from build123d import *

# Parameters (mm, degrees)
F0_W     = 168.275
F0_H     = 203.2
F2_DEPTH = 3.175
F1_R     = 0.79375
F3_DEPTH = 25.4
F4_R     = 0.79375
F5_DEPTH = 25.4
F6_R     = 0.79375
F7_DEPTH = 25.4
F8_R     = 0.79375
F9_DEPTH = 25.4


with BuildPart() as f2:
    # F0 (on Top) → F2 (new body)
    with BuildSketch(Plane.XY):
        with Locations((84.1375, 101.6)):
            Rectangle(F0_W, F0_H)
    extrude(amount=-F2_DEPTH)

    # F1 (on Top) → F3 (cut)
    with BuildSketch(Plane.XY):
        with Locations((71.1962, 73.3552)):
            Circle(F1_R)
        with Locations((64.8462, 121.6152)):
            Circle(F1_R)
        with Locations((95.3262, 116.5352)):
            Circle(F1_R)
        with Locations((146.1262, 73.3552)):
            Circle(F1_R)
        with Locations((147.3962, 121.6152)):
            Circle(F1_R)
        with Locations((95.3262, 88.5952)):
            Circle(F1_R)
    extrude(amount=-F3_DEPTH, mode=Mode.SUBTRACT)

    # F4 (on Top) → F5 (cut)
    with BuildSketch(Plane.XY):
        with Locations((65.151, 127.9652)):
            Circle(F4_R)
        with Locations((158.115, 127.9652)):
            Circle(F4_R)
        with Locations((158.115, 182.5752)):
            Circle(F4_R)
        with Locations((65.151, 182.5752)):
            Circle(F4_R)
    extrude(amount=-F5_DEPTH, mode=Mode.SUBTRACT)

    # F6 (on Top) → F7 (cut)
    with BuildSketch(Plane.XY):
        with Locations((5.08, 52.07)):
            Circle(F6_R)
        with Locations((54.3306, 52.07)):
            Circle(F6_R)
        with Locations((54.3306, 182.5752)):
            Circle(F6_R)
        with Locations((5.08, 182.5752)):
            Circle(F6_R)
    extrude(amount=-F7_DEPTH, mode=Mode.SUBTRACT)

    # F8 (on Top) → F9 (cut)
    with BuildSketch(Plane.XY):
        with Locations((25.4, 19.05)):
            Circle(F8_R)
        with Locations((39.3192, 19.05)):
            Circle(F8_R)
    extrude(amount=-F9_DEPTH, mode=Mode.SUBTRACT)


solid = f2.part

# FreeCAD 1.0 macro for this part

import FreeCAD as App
import Part
import Sketcher
from FreeCAD import Vector
Q = App.Units.Quantity


def add_polygon(sketch, points):
    """Adds a closed chain of lines whose ends are joined by coincident constraints."""
    first, n = sketch.GeometryCount, len(points)
    for a, b in zip(points, points[1:] + points[:1]):
        sketch.addGeometry(Part.LineSegment(App.Vector(*a, 0), App.Vector(*b, 0)), False)
    for i in range(n):
        sketch.addConstraint(Sketcher.Constraint("Coincident", first + i, 2, first + (i + 1) % n, 1))

doc = App.newDocument("Part")
body = doc.addObject("PartDesign::Body", "Body")

# Sketch on XY plane
sketch1 = body.newObject("Sketcher::SketchObject", "Sketch")
sketch1.AttachmentSupport = (doc.getObject("XY_Plane"), [""])
sketch1.MapMode = "FlatFace"
add_polygon(sketch1, [(0, 203), (0, 0), (168, 0), (168, 203)])  # lines 0-3
sketch1.addConstraint([
    Sketcher.Constraint("Vertical", 0),
    Sketcher.Constraint("Horizontal", 1),
    Sketcher.Constraint("Vertical", 2),
    Sketcher.Constraint("Horizontal", 3),
    Sketcher.Constraint("Coincident", 0, 2, -1, 1),
    Sketcher.Constraint("DistanceY", 0, 2, 0, 1, Q("8 in")),
    Sketcher.Constraint("DistanceX", 1, 1, 1, 2, Q("6.625 in")),
])
pad1 = body.newObject("PartDesign::Pad", "Pad")
pad1.Profile = sketch1
pad1.Length = Q("0.125 in")
pad1.Reversed = True

# Sketch on XY plane
sketch2 = body.newObject("Sketcher::SketchObject", "Sketch001")
sketch2.AttachmentSupport = (doc.getObject("XY_Plane"), [""])
sketch2.MapMode = "FlatFace"
sketch2.addGeometry([
    Part.Circle(Vector(71.2, 73.4, 0), Vector(0, 0, 1), 0.8),  # 0
    Part.Circle(Vector(64.8, 121.6, 0), Vector(0, 0, 1), 0.8),  # 1
    Part.Circle(Vector(95.3, 116.5, 0), Vector(0, 0, 1), 0.8),  # 2
    Part.Circle(Vector(146.1, 73.4, 0), Vector(0, 0, 1), 0.8),  # 3
    Part.Circle(Vector(147.4, 121.6, 0), Vector(0, 0, 1), 0.8),  # 4
    Part.Circle(Vector(95.3, 88.6, 0), Vector(0, 0, 1), 0.8),  # 5
], False)
sketch2.addConstraint([
    Sketcher.Constraint("Equal", 0, 1),
    Sketcher.Constraint("Equal", 1, 2),
    Sketcher.Constraint("Equal", 2, 3),
    Sketcher.Constraint("Equal", 3, 4),
    Sketcher.Constraint("Equal", 4, 5),
    Sketcher.Constraint("Horizontal", 0, 3, 3, 3),
    Sketcher.Constraint("Horizontal", 1, 3, 4, 3),
    Sketcher.Constraint("Vertical", 2, 3, 5, 3),
    Sketcher.Constraint("Diameter", 0, Q("0.0625 in")),
    Sketcher.Constraint("DistanceX", 2, 3, 3, 3, Q("2 in")),
    Sketcher.Constraint("DistanceX", 0, 3, 4, 3, Q("3 in")),
    Sketcher.Constraint("DistanceY", 0, 3, 1, 3, Q("1.9 in")),
    Sketcher.Constraint("DistanceX", 1, 3, 2, 3, Q("1.2 in")),
    Sketcher.Constraint("DistanceY", 2, 3, 1, 3, Q("0.2 in")),
    Sketcher.Constraint("DistanceY", 5, 3, 2, 3, Q("1.1 in")),
    Sketcher.Constraint("DistanceX", 1, 3, 0, 3, Q("0.25 in")),
    Sketcher.Constraint("DistanceX", -1, 1, 0, 3, Q("2.803 in")),
    Sketcher.Constraint("DistanceY", -1, 1, 0, 3, Q("2.888 in")),
])
pocket1 = body.newObject("PartDesign::Pocket", "Pocket")
pocket1.Profile = sketch2
pocket1.Length = Q("1 in")

# Sketch on XY plane
sketch3 = body.newObject("Sketcher::SketchObject", "Sketch002")
sketch3.AttachmentSupport = (doc.getObject("XY_Plane"), [""])
sketch3.MapMode = "FlatFace"
sketch3.addGeometry([
    Part.Circle(Vector(65.2, 128, 0), Vector(0, 0, 1), 0.8),
    Part.Circle(Vector(158.1, 128, 0), Vector(0, 0, 1), 0.8),
    Part.Circle(Vector(158.1, 182.6, 0), Vector(0, 0, 1), 0.8),
    Part.Circle(Vector(65.2, 182.6, 0), Vector(0, 0, 1), 0.8),
], False)
sketch3.addConstraint([
    Sketcher.Constraint("Equal", 0, 1),
    Sketcher.Constraint("Equal", 1, 2),
    Sketcher.Constraint("Equal", 2, 3),
    Sketcher.Constraint("Horizontal", 0, 3, 1, 3),
    Sketcher.Constraint("Horizontal", 2, 3, 3, 3),
    Sketcher.Constraint("Vertical", 1, 3, 2, 3),
    Sketcher.Constraint("Vertical", 0, 3, 3, 3),
    Sketcher.Constraint("Diameter", 0, Q("0.0625 in")),
    Sketcher.Constraint("DistanceX", 0, 3, 1, 3, Q("3.66 in")),
    Sketcher.Constraint("DistanceY", 1, 3, 2, 3, Q("2.15 in")),
    Sketcher.Constraint("DistanceX", -1, 1, 0, 3, Q("2.565 in")),
    Sketcher.Constraint("DistanceY", -1, 1, 0, 3, Q("5.038 in")),
])
pocket2 = body.newObject("PartDesign::Pocket", "Pocket001")
pocket2.Profile = sketch3
pocket2.Length = Q("1 in")

# Sketch on XY plane
sketch4 = body.newObject("Sketcher::SketchObject", "Sketch003")
sketch4.AttachmentSupport = (doc.getObject("XY_Plane"), [""])
sketch4.MapMode = "FlatFace"
sketch4.addGeometry([
    Part.Circle(Vector(5.1, 52.1, 0), Vector(0, 0, 1), 0.8),
    Part.Circle(Vector(54.3, 52.1, 0), Vector(0, 0, 1), 0.8),
    Part.Circle(Vector(54.3, 182.6, 0), Vector(0, 0, 1), 0.8),
    Part.Circle(Vector(5.1, 182.6, 0), Vector(0, 0, 1), 0.8),
], False)
sketch4.addConstraint([
    Sketcher.Constraint("Equal", 0, 1),
    Sketcher.Constraint("Equal", 1, 2),
    Sketcher.Constraint("Equal", 2, 3),
    Sketcher.Constraint("Horizontal", 0, 3, 1, 3),
    Sketcher.Constraint("Horizontal", 2, 3, 3, 3),
    Sketcher.Constraint("Vertical", 1, 3, 2, 3),
    Sketcher.Constraint("Vertical", 0, 3, 3, 3),
    Sketcher.Constraint("Diameter", 0, Q("0.0625 in")),
    Sketcher.Constraint("DistanceX", -1, 1, 0, 3, Q("0.2 in")),
    Sketcher.Constraint("DistanceY", -1, 1, 0, 3, Q("2.05 in")),
    Sketcher.Constraint("DistanceX", -1, 1, 1, 3, Q("2.139 in")),
    Sketcher.Constraint("DistanceY", -1, 1, 2, 3, Q("7.188 in")),
])
pocket3 = body.newObject("PartDesign::Pocket", "Pocket002")
pocket3.Profile = sketch4
pocket3.Length = Q("1 in")

# Sketch on XY plane
sketch5 = body.newObject("Sketcher::SketchObject", "Sketch004")
sketch5.AttachmentSupport = (doc.getObject("XY_Plane"), [""])
sketch5.MapMode = "FlatFace"
sketch5.addGeometry([
    Part.Circle(Vector(25.4, 19.1, 0), Vector(0, 0, 1), 0.8),
    Part.Circle(Vector(39.3, 19.1, 0), Vector(0, 0, 1), 0.8),
], False)
sketch5.addConstraint([
    Sketcher.Constraint("Equal", 0, 1),
    Sketcher.Constraint("Horizontal", 0, 3, 1, 3),
    Sketcher.Constraint("Diameter", 0, Q("0.0625 in")),
    Sketcher.Constraint("DistanceX", -1, 1, 0, 3, Q("1 in")),
    Sketcher.Constraint("DistanceY", -1, 1, 0, 3, Q("0.75 in")),
    Sketcher.Constraint("DistanceX", -1, 1, 1, 3, Q("1.548 in")),
])
pocket4 = body.newObject("PartDesign::Pocket", "Pocket003")
pocket4.Profile = sketch5
pocket4.Length = Q("1 in")

doc.recompute()
